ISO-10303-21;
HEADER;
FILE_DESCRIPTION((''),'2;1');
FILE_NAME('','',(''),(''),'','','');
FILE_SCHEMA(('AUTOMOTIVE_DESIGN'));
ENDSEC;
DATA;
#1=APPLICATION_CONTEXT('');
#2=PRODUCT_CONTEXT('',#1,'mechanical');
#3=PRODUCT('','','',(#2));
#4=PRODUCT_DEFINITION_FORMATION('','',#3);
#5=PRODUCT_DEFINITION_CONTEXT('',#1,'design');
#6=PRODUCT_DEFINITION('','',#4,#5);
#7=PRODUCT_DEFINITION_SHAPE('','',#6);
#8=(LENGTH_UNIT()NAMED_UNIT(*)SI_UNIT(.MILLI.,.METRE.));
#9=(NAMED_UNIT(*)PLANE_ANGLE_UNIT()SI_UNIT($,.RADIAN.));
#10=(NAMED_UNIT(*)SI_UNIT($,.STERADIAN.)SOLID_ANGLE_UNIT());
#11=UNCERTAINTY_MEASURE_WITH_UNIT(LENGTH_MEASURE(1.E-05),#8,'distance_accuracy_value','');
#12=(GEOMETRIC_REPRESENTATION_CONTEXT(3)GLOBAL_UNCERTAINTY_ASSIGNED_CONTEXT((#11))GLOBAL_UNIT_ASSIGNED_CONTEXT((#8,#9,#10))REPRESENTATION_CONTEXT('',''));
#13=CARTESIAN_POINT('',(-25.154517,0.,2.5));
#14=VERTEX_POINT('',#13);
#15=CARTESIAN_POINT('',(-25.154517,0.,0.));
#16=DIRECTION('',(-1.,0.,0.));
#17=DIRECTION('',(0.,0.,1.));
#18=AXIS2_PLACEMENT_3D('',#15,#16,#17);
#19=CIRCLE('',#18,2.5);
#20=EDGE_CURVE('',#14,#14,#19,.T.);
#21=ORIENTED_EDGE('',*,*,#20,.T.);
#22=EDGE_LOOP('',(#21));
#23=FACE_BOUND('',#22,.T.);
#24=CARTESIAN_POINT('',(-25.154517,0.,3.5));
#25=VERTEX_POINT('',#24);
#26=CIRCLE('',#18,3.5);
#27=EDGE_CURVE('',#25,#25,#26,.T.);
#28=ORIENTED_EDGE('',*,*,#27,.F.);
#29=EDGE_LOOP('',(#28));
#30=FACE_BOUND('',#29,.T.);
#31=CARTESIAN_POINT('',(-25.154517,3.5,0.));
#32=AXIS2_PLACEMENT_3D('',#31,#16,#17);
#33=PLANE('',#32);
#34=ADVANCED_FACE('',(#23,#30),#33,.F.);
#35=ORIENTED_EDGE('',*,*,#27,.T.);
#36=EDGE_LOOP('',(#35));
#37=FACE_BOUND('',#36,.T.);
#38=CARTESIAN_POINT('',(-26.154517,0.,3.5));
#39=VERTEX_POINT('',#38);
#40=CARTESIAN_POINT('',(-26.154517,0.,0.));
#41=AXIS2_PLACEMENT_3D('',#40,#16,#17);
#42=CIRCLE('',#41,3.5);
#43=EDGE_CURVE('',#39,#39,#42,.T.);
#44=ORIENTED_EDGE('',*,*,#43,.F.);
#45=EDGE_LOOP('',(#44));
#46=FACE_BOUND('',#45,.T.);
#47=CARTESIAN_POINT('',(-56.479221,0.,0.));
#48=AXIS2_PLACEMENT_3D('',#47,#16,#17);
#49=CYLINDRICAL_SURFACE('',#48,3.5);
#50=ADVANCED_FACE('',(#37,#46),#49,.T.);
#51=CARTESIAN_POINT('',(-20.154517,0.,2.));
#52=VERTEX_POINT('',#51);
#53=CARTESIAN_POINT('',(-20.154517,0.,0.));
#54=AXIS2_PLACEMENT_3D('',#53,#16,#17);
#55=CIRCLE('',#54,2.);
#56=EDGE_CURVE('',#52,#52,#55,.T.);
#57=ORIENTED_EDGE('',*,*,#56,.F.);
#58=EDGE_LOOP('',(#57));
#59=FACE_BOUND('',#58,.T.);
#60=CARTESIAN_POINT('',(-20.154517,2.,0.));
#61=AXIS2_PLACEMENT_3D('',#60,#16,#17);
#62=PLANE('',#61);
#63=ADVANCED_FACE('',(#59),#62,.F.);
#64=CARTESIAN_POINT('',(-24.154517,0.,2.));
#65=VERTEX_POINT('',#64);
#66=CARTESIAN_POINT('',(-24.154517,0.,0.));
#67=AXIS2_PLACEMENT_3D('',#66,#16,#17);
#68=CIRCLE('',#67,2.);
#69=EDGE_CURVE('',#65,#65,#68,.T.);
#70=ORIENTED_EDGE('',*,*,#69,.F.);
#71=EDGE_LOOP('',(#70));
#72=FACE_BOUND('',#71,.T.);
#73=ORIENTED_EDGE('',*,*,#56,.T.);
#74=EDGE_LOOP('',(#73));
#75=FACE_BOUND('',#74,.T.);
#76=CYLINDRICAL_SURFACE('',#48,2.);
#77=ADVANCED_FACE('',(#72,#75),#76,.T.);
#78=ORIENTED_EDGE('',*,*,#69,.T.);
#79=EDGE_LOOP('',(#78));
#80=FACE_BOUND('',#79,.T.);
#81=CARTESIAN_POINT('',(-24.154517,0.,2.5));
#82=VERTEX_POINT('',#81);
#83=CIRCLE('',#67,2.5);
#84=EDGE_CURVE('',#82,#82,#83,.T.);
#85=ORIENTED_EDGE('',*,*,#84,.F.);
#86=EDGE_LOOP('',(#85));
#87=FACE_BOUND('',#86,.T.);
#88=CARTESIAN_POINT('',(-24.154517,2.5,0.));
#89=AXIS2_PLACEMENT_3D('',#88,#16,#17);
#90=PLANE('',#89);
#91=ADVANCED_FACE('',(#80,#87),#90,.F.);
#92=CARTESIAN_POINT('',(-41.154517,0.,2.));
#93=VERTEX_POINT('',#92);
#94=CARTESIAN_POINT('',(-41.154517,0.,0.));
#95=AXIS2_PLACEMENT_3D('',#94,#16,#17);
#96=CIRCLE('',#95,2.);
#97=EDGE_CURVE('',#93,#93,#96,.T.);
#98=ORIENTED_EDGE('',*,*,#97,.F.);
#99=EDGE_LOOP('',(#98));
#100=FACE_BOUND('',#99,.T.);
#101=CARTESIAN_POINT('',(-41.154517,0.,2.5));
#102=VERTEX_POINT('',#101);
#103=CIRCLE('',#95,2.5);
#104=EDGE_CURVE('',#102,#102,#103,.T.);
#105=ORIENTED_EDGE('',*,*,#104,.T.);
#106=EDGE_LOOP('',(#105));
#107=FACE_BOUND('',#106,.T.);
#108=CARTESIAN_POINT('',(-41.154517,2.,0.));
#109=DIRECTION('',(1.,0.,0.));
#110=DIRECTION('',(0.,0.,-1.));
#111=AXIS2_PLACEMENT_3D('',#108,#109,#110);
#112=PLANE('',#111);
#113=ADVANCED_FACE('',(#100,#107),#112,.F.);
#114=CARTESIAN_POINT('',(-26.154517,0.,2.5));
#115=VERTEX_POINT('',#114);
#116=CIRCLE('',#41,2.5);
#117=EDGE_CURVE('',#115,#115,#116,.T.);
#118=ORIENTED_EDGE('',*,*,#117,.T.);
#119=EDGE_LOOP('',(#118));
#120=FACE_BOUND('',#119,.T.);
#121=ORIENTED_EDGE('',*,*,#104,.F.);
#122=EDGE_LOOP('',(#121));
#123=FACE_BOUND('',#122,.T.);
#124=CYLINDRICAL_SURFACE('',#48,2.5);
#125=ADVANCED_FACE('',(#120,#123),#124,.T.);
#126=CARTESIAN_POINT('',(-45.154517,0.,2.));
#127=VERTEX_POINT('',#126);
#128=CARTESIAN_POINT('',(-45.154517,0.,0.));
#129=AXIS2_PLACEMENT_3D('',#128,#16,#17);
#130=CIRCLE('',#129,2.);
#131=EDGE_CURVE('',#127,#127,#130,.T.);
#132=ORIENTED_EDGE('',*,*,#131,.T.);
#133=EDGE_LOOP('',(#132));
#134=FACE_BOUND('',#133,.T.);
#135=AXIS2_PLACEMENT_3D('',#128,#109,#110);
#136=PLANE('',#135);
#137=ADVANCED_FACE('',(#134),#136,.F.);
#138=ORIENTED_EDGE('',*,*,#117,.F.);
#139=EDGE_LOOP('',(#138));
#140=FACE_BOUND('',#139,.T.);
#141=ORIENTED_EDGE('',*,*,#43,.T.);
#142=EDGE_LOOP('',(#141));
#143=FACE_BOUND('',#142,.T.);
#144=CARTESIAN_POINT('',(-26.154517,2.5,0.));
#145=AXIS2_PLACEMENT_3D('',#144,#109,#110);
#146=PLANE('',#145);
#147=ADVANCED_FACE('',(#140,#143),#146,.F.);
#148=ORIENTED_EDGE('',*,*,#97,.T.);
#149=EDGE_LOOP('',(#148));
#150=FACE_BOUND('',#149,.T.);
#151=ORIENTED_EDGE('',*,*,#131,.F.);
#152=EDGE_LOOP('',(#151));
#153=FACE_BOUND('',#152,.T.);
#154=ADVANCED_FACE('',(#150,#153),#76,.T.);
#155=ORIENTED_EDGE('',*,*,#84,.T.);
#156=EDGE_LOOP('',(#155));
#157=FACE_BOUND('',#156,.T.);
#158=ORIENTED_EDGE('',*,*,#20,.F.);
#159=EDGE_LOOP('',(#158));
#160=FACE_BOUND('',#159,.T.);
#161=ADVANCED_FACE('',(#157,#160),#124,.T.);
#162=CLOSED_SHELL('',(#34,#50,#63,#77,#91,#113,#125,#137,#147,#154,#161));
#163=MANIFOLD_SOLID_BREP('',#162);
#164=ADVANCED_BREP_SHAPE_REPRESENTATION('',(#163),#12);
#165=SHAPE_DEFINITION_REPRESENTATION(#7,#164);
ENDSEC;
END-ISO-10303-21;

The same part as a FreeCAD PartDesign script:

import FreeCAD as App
import Part
import Sketcher
from FreeCAD import Vector
Q = App.Units.Quantity

doc = App.newDocument("Part")
params = doc.addObject("Spreadsheet::Sheet", "Params")
for row, (alias, value) in enumerate([
    ("sketch1_width", "25 mm"),
    ("sketch1_width2", "4 mm"),
    ("sketch1_width3", "1 mm"),
    ("sketch1_height", "2 mm"),
    ("sketch1_height2", "0.5 mm"),
    ("revolution_angle", "360 deg"),
], start=1):
    params.set(f"A{row}", alias)
    params.set(f"B{row}", "=" + value)
    params.setAlias(f"B{row}", alias)

body = doc.addObject("PartDesign::Body", "Body")

sketch1 = body.newObject("Sketcher::SketchObject", "Sketch")
sketch1.AttachmentSupport = (doc.getObject("XY_Plane"), [""])
sketch1.MapMode = "FlatFace"
sketch1.addGeometry([
    Part.LineSegment(Vector(-45.154517, 2, 0), Vector(-45.154517, 0, 0)),
    Part.LineSegment(Vector(-45.154517, 0, 0), Vector(-20.154517, 0, 0)),
    Part.LineSegment(Vector(-20.154517, 0, 0), Vector(-20.154517, 2, 0)),
    Part.LineSegment(Vector(-20.154517, 2, 0), Vector(-24.154517, 2, 0)),
    Part.LineSegment(Vector(-24.154517, 2, 0), Vector(-24.154517, 2.5, 0)),
    Part.LineSegment(Vector(-24.154517, 2.5, 0), Vector(-25.154517, 2.5, 0)),
    Part.LineSegment(Vector(-25.154517, 2.5, 0), Vector(-25.154517, 3.5, 0)),
    Part.LineSegment(Vector(-25.154517, 3.5, 0), Vector(-26.154517, 3.5, 0)),
    Part.LineSegment(Vector(-26.154517, 3.5, 0), Vector(-26.154517, 2.5, 0)),
    Part.LineSegment(Vector(-26.154517, 2.5, 0), Vector(-41.154517, 2.5, 0)),
    Part.LineSegment(Vector(-41.154517, 2.5, 0), Vector(-41.154517, 2, 0)),
    Part.LineSegment(Vector(-41.154517, 2, 0), Vector(-45.154517, 2, 0)),
], False)
sketch1.addConstraint([
    Sketcher.Constraint("Coincident", 0, 2, 1, 1),
    Sketcher.Constraint("Coincident", 1, 2, 2, 1),
    Sketcher.Constraint("Coincident", 2, 2, 3, 1),
    Sketcher.Constraint("Coincident", 3, 2, 4, 1),
    Sketcher.Constraint("Coincident", 4, 2, 5, 1),
    Sketcher.Constraint("Coincident", 5, 2, 6, 1),
    Sketcher.Constraint("Coincident", 6, 2, 7, 1),
    Sketcher.Constraint("Coincident", 7, 2, 8, 1),
    Sketcher.Constraint("Coincident", 8, 2, 9, 1),
    Sketcher.Constraint("Coincident", 9, 2, 10, 1),
    Sketcher.Constraint("Coincident", 10, 2, 11, 1),
    Sketcher.Constraint("Coincident", 11, 2, 0, 1),
    Sketcher.Constraint("Vertical", 0),
    Sketcher.Constraint("Horizontal", 1),
    Sketcher.Constraint("Vertical", 2),
    Sketcher.Constraint("Horizontal", 3),
    Sketcher.Constraint("Vertical", 4),
    Sketcher.Constraint("Horizontal", 5),
    Sketcher.Constraint("Vertical", 6),
    Sketcher.Constraint("Horizontal", 7),
    Sketcher.Constraint("Vertical", 8),
    Sketcher.Constraint("Horizontal", 9),
    Sketcher.Constraint("Vertical", 10),
    Sketcher.Constraint("Horizontal", 11),
    Sketcher.Constraint("PointOnObject", 0, 2, -1),
    Sketcher.Constraint("Horizontal", 5, 2, 8, 2),
    Sketcher.Constraint("Horizontal", 3, 2, 10, 2),
    Sketcher.Constraint("Equal", 5, 7),
    Sketcher.Constraint("Equal", 3, 11),
    Sketcher.Constraint("Equal", 7, 6),
    Sketcher.Constraint("DistanceX", 1, 1, 1, 2, Q("25 mm")),
    Sketcher.Constraint("DistanceX", 3, 2, 3, 1, Q("4 mm")),
    Sketcher.Constraint("DistanceX", 5, 2, 5, 1, Q("1 mm")),
    Sketcher.Constraint("DistanceY", 0, 2, 0, 1, Q("2 mm")),
    Sketcher.Constraint("DistanceY", 4, 1, 4, 2, Q("0.5 mm")),
    Sketcher.Constraint("DistanceX", 0, 2, -1, 1, Q("45.154517 mm")),
])
sketch1.setExpression("Constraints[30]", "Params.sketch1_width")
sketch1.setExpression("Constraints[31]", "Params.sketch1_width2")
sketch1.setExpression("Constraints[32]", "Params.sketch1_width3")
sketch1.setExpression("Constraints[33]", "Params.sketch1_height")
sketch1.setExpression("Constraints[34]", "Params.sketch1_height2")
revolution = body.newObject("PartDesign::Revolution", "Revolution")
revolution.Profile = sketch1
revolution.ReferenceAxis = (sketch1, ["H_Axis"])
revolution.setExpression("Angle", "Params.revolution_angle")

doc.recompute()
